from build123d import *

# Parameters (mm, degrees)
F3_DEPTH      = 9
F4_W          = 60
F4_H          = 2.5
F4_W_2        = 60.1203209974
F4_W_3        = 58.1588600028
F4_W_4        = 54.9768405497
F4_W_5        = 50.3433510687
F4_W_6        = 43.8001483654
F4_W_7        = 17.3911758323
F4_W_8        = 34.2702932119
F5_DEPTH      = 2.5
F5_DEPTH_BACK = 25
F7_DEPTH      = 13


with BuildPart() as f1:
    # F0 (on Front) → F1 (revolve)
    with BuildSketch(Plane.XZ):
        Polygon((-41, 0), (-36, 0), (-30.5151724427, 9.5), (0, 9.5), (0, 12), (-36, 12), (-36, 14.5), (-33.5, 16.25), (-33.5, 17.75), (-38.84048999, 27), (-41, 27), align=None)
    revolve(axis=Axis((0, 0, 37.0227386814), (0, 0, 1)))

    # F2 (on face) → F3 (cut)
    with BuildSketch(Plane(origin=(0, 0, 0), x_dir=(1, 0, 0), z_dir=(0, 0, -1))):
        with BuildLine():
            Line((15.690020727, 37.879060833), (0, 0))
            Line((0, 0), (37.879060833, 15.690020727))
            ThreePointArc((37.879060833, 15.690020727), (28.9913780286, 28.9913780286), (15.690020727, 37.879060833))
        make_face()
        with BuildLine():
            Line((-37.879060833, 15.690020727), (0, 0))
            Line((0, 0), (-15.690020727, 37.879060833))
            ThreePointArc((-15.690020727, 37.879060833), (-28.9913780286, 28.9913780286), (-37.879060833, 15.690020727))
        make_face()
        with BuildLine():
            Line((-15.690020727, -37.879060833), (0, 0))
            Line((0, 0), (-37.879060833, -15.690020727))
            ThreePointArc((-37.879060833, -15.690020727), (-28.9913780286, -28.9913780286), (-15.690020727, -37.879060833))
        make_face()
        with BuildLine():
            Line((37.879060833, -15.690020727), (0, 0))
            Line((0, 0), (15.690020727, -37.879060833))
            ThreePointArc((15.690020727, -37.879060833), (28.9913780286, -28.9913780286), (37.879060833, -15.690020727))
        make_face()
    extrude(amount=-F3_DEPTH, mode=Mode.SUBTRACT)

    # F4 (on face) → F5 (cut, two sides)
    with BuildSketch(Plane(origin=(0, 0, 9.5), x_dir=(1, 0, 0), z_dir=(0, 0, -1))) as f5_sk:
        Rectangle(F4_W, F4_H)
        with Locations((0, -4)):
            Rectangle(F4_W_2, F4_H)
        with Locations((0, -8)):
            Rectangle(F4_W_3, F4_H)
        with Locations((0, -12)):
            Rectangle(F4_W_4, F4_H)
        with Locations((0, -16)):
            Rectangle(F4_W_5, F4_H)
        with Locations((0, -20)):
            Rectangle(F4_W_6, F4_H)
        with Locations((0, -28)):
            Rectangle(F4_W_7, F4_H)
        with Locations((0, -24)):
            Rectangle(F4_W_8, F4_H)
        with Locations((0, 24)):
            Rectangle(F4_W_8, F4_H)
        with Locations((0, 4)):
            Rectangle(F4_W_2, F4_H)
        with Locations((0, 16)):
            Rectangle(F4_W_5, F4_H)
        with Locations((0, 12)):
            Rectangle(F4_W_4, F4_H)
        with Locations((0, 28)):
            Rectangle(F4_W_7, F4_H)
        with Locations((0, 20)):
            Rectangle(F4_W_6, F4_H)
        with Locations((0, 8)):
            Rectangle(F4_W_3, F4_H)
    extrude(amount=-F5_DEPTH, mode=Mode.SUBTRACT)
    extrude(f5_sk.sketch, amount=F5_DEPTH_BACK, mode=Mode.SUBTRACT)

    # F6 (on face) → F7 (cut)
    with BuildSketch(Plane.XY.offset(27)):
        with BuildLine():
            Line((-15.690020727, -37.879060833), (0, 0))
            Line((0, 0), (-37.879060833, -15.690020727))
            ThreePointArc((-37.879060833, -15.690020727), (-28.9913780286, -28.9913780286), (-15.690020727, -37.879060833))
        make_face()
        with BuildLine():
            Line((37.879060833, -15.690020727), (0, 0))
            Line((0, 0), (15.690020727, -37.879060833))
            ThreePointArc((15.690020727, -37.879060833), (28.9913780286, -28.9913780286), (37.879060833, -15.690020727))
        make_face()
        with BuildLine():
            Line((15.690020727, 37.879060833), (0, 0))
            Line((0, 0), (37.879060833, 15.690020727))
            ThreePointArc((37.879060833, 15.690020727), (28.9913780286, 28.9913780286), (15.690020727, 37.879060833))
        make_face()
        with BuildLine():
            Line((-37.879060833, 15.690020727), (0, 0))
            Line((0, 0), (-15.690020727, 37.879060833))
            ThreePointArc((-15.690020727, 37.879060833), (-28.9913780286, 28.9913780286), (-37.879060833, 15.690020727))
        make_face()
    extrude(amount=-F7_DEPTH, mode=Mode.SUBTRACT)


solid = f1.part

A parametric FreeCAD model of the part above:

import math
import FreeCAD as App
import Part
import Sketcher

V = App.Vector
Q = App.Units.Quantity


def add_polygon(sketch, points):
    """Adds a closed chain of lines whose ends are joined by coincident constraints."""
    first, n = sketch.GeometryCount, len(points)
    for a, b in zip(points, points[1:] + points[:1]):
        sketch.addGeometry(Part.LineSegment(App.Vector(*a, 0), App.Vector(*b, 0)), False)
    for i in range(n):
        sketch.addConstraint(Sketcher.Constraint("Coincident", first + i, 2, first + (i + 1) % n, 1))

doc = App.newDocument("Part")
body = doc.addObject("PartDesign::Body", "Body")

# Sketch on XZ plane
sketch1 = body.newObject("Sketcher::SketchObject", "Sketch")
sketch1.AttachmentSupport = (doc.getObject("XZ_Plane"), [""])
sketch1.MapMode = "FlatFace"
add_polygon(sketch1, [(-41, 0), (-36, 0), (-30.515172, 9.5), (0, 9.5), (0, 12), (-36, 12), (-36, 14.5), (-33.5, 16.25), (-33.5, 17.75), (-38.84049, 27), (-41, 27)])  # lines 0-10
sketch1.addConstraint([
    Sketcher.Constraint("Horizontal", 0),
    Sketcher.Constraint("Horizontal", 2),
    Sketcher.Constraint("Vertical", 3),
    Sketcher.Constraint("Horizontal", 4),
    Sketcher.Constraint("Vertical", 5),
    Sketcher.Constraint("Vertical", 7),
    Sketcher.Constraint("Horizontal", 9),
    Sketcher.Constraint("Vertical", 10),
    Sketcher.Constraint("PointOnObject", 0, 2, -1),
    Sketcher.Constraint("PointOnObject", 2, 2, -2),
    Sketcher.Constraint("Vertical", 0, 2, 4, 2),
    Sketcher.Constraint("Equal", 3, 5),
    Sketcher.Constraint("DistanceX", 0, 1, 0, 2, Q("5 mm")),
    Sketcher.Constraint("DistanceX", 4, 2, 4, 1, Q("36 mm")),
    Sketcher.Constraint("DistanceY", 10, 2, 10, 1, Q("27 mm")),
    Sketcher.Constraint("Angle", 1, Q("60 deg")),
    Sketcher.Constraint("Angle", 8, Q("120 deg")),
    Sketcher.Constraint("DistanceY", 3, 1, 3, 2, Q("2.5 mm")),
    Sketcher.Constraint("DistanceY", 7, 1, 7, 2, Q("1.5 mm")),
    Sketcher.Constraint("DistanceY", -1, 1, 3, 2, Q("12 mm")),
    Sketcher.Constraint("DistanceX", 6, 2, -1, 1, Q("33.5 mm")),
    Sketcher.Constraint("DistanceY", -1, 1, 6, 2, Q("16.25 mm")),
])
revolution = body.newObject("PartDesign::Revolution", "Revolution")
revolution.Profile = sketch1
revolution.ReferenceAxis = (sketch1, ["V_Axis"])
revolution.Angle = 360

# Sketch on XY plane
sketch2 = body.newObject("Sketcher::SketchObject", "Sketch001")
sketch2.AttachmentSupport = (doc.getObject("XY_Plane"), [""])
sketch2.MapMode = "FlatFace"
sketch2.addGeometry([
    Part.LineSegment(V(15.690021, -37.879061, 0), V(0, 0, 0)),  # 0
    Part.LineSegment(V(0, 0, 0), V(37.879061, -15.690021, 0)),  # 1
    Part.ArcOfCircle(Part.Circle(V(0, 0, 0), V(0, 0, 1), 41), math.radians(-67.5), math.radians(-22.5)),  # 2
    Part.LineSegment(V(-37.879061, -15.690021, 0), V(0, 0, 0)),  # 3
    Part.LineSegment(V(0, 0, 0), V(-15.690021, -37.879061, 0)),  # 4
    Part.ArcOfCircle(Part.Circle(V(0, 0, 0), V(0, 0, 1), 41), math.radians(-157.5), math.radians(-112.5)),  # 5
    Part.LineSegment(V(-15.690021, 37.879061, 0), V(0, 0, 0)),  # 6
    Part.LineSegment(V(0, 0, 0), V(-37.879061, 15.690021, 0)),  # 7
    Part.ArcOfCircle(Part.Circle(V(0, 0, 0), V(0, 0, 1), 41), math.radians(112.5), math.radians(157.5)),  # 8
    Part.LineSegment(V(37.879061, 15.690021, 0), V(0, 0, 0)),  # 9
    Part.LineSegment(V(0, 0, 0), V(15.690021, 37.879061, 0)),  # 10
    Part.ArcOfCircle(Part.Circle(V(0, 0, 0), V(0, 0, 1), 41), math.radians(22.5), math.radians(67.5)),  # 11
], False)
sketch2.addConstraint([
    Sketcher.Constraint("Coincident", 0, 2, 1, 1),
    Sketcher.Constraint("Coincident", 1, 2, 2, 2),
    Sketcher.Constraint("Coincident", 2, 1, 0, 1),
    Sketcher.Constraint("Coincident", 3, 2, 4, 1),
    Sketcher.Constraint("Coincident", 4, 2, 5, 2),
    Sketcher.Constraint("Coincident", 5, 1, 3, 1),
    Sketcher.Constraint("Coincident", 6, 2, 7, 1),
    Sketcher.Constraint("Coincident", 7, 2, 8, 2),
    Sketcher.Constraint("Coincident", 8, 1, 6, 1),
    Sketcher.Constraint("Coincident", 9, 2, 10, 1),
    Sketcher.Constraint("Coincident", 10, 2, 11, 2),
    Sketcher.Constraint("Coincident", 11, 1, 9, 1),
    Sketcher.Constraint("Coincident", 2, 3, -1, 1),
    Sketcher.Constraint("Coincident", 5, 3, -1, 1),
    Sketcher.Constraint("Coincident", 8, 3, -1, 1),
    Sketcher.Constraint("Coincident", 11, 3, -1, 1),
    Sketcher.Constraint("Coincident", 0, 2, -1, 1),
    Sketcher.Constraint("Coincident", 3, 2, -1, 1),
    Sketcher.Constraint("Coincident", 6, 2, -1, 1),
    Sketcher.Constraint("Coincident", 9, 2, -1, 1),
    Sketcher.Constraint("Equal", 2, 5),
    Sketcher.Constraint("Equal", 5, 8),
    Sketcher.Constraint("Equal", 8, 11),
    Sketcher.Constraint("Perpendicular", 0, 3),
    Sketcher.Constraint("Perpendicular", 1, 4),
    Sketcher.Constraint("Perpendicular", 3, 6),
    Sketcher.Constraint("Perpendicular", 4, 7),
    Sketcher.Constraint("Perpendicular", 6, 9),
    Sketcher.Constraint("Perpendicular", 7, 10),
    Sketcher.Constraint("Horizontal", 2, 1, 4, 2),
    Sketcher.Constraint("Radius", 2, Q("41 mm")),
    Sketcher.Constraint("Angle", 0, Q("112.5 deg")),
])
pocket1 = body.newObject("PartDesign::Pocket", "Pocket")
pocket1.Profile = sketch2
pocket1.Length = 9
pocket1.Reversed = True

# Sketch on XY plane
sketch3 = body.newObject("Sketcher::SketchObject", "Sketch002")
sketch3.AttachmentSupport = (doc.getObject("XY_Plane"), [""])
sketch3.MapMode = "FlatFace"
sketch3.AttachmentOffset = App.Placement(V(0, 0, 9.5), App.Rotation())
add_polygon(sketch3, [(-30, -1.25), (-30, 1.25), (30, 1.25), (30, -1.25)])  # lines 0-3
add_polygon(sketch3, [(-30.06016, 2.75), (-30.06016, 5.25), (30.06016, 5.25), (30.06016, 2.75)])  # lines 4-7
add_polygon(sketch3, [(-29.07943, 6.75), (-29.07943, 9.25), (29.07943, 9.25), (29.07943, 6.75)])  # lines 8-11
add_polygon(sketch3, [(-27.48842, 10.75), (-27.48842, 13.25), (27.48842, 13.25), (27.48842, 10.75)])  # lines 12-15
add_polygon(sketch3, [(-25.171676, 14.75), (-25.171676, 17.25), (25.171676, 17.25), (25.171676, 14.75)])  # lines 16-19
add_polygon(sketch3, [(-21.900074, 18.75), (-21.900074, 21.25), (21.900074, 21.25), (21.900074, 18.75)])  # lines 20-23
add_polygon(sketch3, [(-8.695588, 26.75), (-8.695588, 29.25), (8.695588, 29.25), (8.695588, 26.75)])  # lines 24-27
add_polygon(sketch3, [(-17.135147, 22.75), (-17.135147, 25.25), (17.135147, 25.25), (17.135147, 22.75)])  # lines 28-31
add_polygon(sketch3, [(-17.135147, -25.25), (-17.135147, -22.75), (17.135147, -22.75), (17.135147, -25.25)])  # lines 32-35
add_polygon(sketch3, [(-30.06016, -5.25), (-30.06016, -2.75), (30.06016, -2.75), (30.06016, -5.25)])  # lines 36-39
add_polygon(sketch3, [(-25.171676, -17.25), (-25.171676, -14.75), (25.171676, -14.75), (25.171676, -17.25)])  # lines 40-43
add_polygon(sketch3, [(-27.48842, -13.25), (-27.48842, -10.75), (27.48842, -10.75), (27.48842, -13.25)])  # lines 44-47
add_polygon(sketch3, [(-8.695588, -29.25), (-8.695588, -26.75), (8.695588, -26.75), (8.695588, -29.25)])  # lines 48-51
add_polygon(sketch3, [(-21.900074, -21.25), (-21.900074, -18.75), (21.900074, -18.75), (21.900074, -21.25)])  # lines 52-55
add_polygon(sketch3, [(-29.07943, -9.25), (-29.07943, -6.75), (29.07943, -6.75), (29.07943, -9.25)])  # lines 56-59
sketch3.addConstraint([
    Sketcher.Constraint("Vertical", 0),
    Sketcher.Constraint("Horizontal", 1),
    Sketcher.Constraint("Vertical", 2),
    Sketcher.Constraint("Horizontal", 3),
    Sketcher.Constraint("Vertical", 4),
    Sketcher.Constraint("Horizontal", 5),
    Sketcher.Constraint("Vertical", 6),
    Sketcher.Constraint("Horizontal", 7),
    Sketcher.Constraint("Vertical", 8),
    Sketcher.Constraint("Horizontal", 9),
    Sketcher.Constraint("Vertical", 10),
    Sketcher.Constraint("Horizontal", 11),
    Sketcher.Constraint("Vertical", 12),
    Sketcher.Constraint("Horizontal", 13),
    Sketcher.Constraint("Vertical", 14),
    Sketcher.Constraint("Horizontal", 15),
    Sketcher.Constraint("Vertical", 16),
    Sketcher.Constraint("Horizontal", 17),
    Sketcher.Constraint("Vertical", 18),
    Sketcher.Constraint("Horizontal", 19),
    Sketcher.Constraint("Vertical", 20),
    Sketcher.Constraint("Horizontal", 21),
    Sketcher.Constraint("Vertical", 22),
    Sketcher.Constraint("Horizontal", 23),
    Sketcher.Constraint("Vertical", 24),
    Sketcher.Constraint("Horizontal", 25),
    Sketcher.Constraint("Vertical", 26),
    Sketcher.Constraint("Horizontal", 27),
    Sketcher.Constraint("Vertical", 28),
    Sketcher.Constraint("Horizontal", 29),
    Sketcher.Constraint("Vertical", 30),
    Sketcher.Constraint("Horizontal", 31),
    Sketcher.Constraint("Vertical", 32),
    Sketcher.Constraint("Horizontal", 33),
    Sketcher.Constraint("Vertical", 34),
    Sketcher.Constraint("Horizontal", 35),
    Sketcher.Constraint("Vertical", 36),
    Sketcher.Constraint("Horizontal", 37),
    Sketcher.Constraint("Vertical", 38),
    Sketcher.Constraint("Horizontal", 39),
    Sketcher.Constraint("Vertical", 40),
    Sketcher.Constraint("Horizontal", 41),
    Sketcher.Constraint("Vertical", 42),
    Sketcher.Constraint("Horizontal", 43),
    Sketcher.Constraint("Vertical", 44),
    Sketcher.Constraint("Horizontal", 45),
    Sketcher.Constraint("Vertical", 46),
    Sketcher.Constraint("Horizontal", 47),
    Sketcher.Constraint("Vertical", 48),
    Sketcher.Constraint("Horizontal", 49),
    Sketcher.Constraint("Vertical", 50),
    Sketcher.Constraint("Horizontal", 51),
    Sketcher.Constraint("Vertical", 52),
    Sketcher.Constraint("Horizontal", 53),
    Sketcher.Constraint("Vertical", 54),
    Sketcher.Constraint("Horizontal", 55),
    Sketcher.Constraint("Vertical", 56),
    Sketcher.Constraint("Horizontal", 57),
    Sketcher.Constraint("Vertical", 58),
    Sketcher.Constraint("Horizontal", 59),
    Sketcher.Constraint("Symmetric", 0, 2, 2, 2, -1, 1),
    Sketcher.Constraint("Symmetric", 30, 2, 32, 2, -1, 1),
    Sketcher.Constraint("Symmetric", 28, 2, 34, 2, -1, 1),
    Sketcher.Constraint("Symmetric", 6, 2, 36, 2, -1, 1),
    Sketcher.Constraint("Symmetric", 4, 2, 38, 2, -1, 1),
    Sketcher.Constraint("Symmetric", 18, 2, 40, 2, -1, 1),
    Sketcher.Constraint("Symmetric", 16, 2, 42, 2, -1, 1),
    Sketcher.Constraint("Symmetric", 14, 2, 44, 2, -1, 1),
    Sketcher.Constraint("Symmetric", 12, 2, 46, 2, -1, 1),
    Sketcher.Constraint("Symmetric", 26, 2, 48, 2, -1, 1),
    Sketcher.Constraint("Symmetric", 24, 2, 50, 2, -1, 1),
    Sketcher.Constraint("Symmetric", 22, 2, 52, 2, -1, 1),
    Sketcher.Constraint("Symmetric", 20, 2, 54, 2, -1, 1),
    Sketcher.Constraint("Symmetric", 10, 2, 56, 2, -1, 1),
    Sketcher.Constraint("Symmetric", 8, 2, 58, 2, -1, 1),
    Sketcher.Constraint("Vertical", 31, 2, 32, 2),
    Sketcher.Constraint("Vertical", 7, 2, 36, 2),
    Sketcher.Constraint("Vertical", 19, 2, 40, 2),
    Sketcher.Constraint("Vertical", 15, 2, 44, 2),
    Sketcher.Constraint("Vertical", 27, 2, 48, 2),
    Sketcher.Constraint("Vertical", 23, 2, 52, 2),
    Sketcher.Constraint("Vertical", 11, 2, 56, 2),
    Sketcher.Constraint("Equal", 2, 4),
    Sketcher.Constraint("Equal", 6, 8),
    Sketcher.Constraint("Equal", 10, 12),
    Sketcher.Constraint("Equal", 14, 16),
    Sketcher.Constraint("Equal", 18, 20),
    Sketcher.Constraint("Equal", 22, 24),
    Sketcher.Constraint("Equal", 26, 28),
    Sketcher.Constraint("DistanceX", 1, 1, 1, 2, Q("60 mm")),
    Sketcher.Constraint("DistanceY", 0, 1, 0, 2, Q("2.5 mm")),
    Sketcher.Constraint("DistanceY", 0, 2, 4, 2, Q("4 mm")),
    Sketcher.Constraint("DistanceY", 4, 2, 8, 2, Q("4 mm")),
    Sketcher.Constraint("DistanceY", 8, 2, 12, 2, Q("4 mm")),
    Sketcher.Constraint("DistanceY", 12, 2, 16, 2, Q("4 mm")),
    Sketcher.Constraint("DistanceY", 16, 2, 20, 2, Q("4 mm")),
    Sketcher.Constraint("DistanceY", 20, 2, 24, 2, Q("8 mm")),
    Sketcher.Constraint("DistanceY", 20, 2, 28, 2, Q("4 mm")),
    Sketcher.Constraint("DistanceX", 5, 1, 5, 2, Q("60.120321 mm")),
    Sketcher.Constraint("DistanceX", 9, 1, 9, 2, Q("58.15886 mm")),
    Sketcher.Constraint("DistanceX", 13, 1, 13, 2, Q("54.976841 mm")),
    Sketcher.Constraint("DistanceX", 17, 1, 17, 2, Q("50.343351 mm")),
    Sketcher.Constraint("DistanceX", 21, 1, 21, 2, Q("43.800148 mm")),
    Sketcher.Constraint("DistanceX", 25, 1, 25, 2, Q("17.391176 mm")),
    Sketcher.Constraint("DistanceX", 29, 1, 29, 2, Q("34.270293 mm")),
])
pocket2 = body.newObject("PartDesign::Pocket", "Pocket001")
pocket2.Profile = sketch3
pocket2.Type = "ThroughAll"
pocket2.Midplane = True

# Sketch on XY plane
sketch4 = body.newObject("Sketcher::SketchObject", "Sketch003")
sketch4.AttachmentSupport = (doc.getObject("XY_Plane"), [""])
sketch4.MapMode = "FlatFace"
sketch4.AttachmentOffset = App.Placement(V(0, 0, 27), App.Rotation())
sketch4.addGeometry([
    Part.LineSegment(V(-15.690021, -37.879061, 0), V(0, 0, 0)),  # 0
    Part.LineSegment(V(0, 0, 0), V(-37.879061, -15.690021, 0)),  # 1
    Part.ArcOfCircle(Part.Circle(V(0, 0, 0), V(0, 0, 1), 41), math.radians(-157.5), math.radians(-112.5)),  # 2
    Part.LineSegment(V(37.879061, -15.690021, 0), V(0, 0, 0)),  # 3
    Part.LineSegment(V(0, 0, 0), V(15.690021, -37.879061, 0)),  # 4
    Part.ArcOfCircle(Part.Circle(V(0, 0, 0), V(0, 0, 1), 41), math.radians(-67.5), math.radians(-22.5)),  # 5
    Part.LineSegment(V(15.690021, 37.879061, 0), V(0, 0, 0)),  # 6
    Part.LineSegment(V(0, 0, 0), V(37.879061, 15.690021, 0)),  # 7
    Part.ArcOfCircle(Part.Circle(V(0, 0, 0), V(0, 0, 1), 41), math.radians(22.5), math.radians(67.5)),  # 8
    Part.LineSegment(V(-37.879061, 15.690021, 0), V(0, 0, 0)),  # 9
    Part.LineSegment(V(0, 0, 0), V(-15.690021, 37.879061, 0)),  # 10
    Part.ArcOfCircle(Part.Circle(V(0, 0, 0), V(0, 0, 1), 41), math.radians(112.5), math.radians(157.5)),  # 11
], False)
sketch4.addConstraint([
    Sketcher.Constraint("Coincident", 0, 2, 1, 1),
    Sketcher.Constraint("Coincident", 1, 2, 2, 1),
    Sketcher.Constraint("Coincident", 2, 2, 0, 1),
    Sketcher.Constraint("Coincident", 3, 2, 4, 1),
    Sketcher.Constraint("Coincident", 4, 2, 5, 1),
    Sketcher.Constraint("Coincident", 5, 2, 3, 1),
    Sketcher.Constraint("Coincident", 6, 2, 7, 1),
    Sketcher.Constraint("Coincident", 7, 2, 8, 1),
    Sketcher.Constraint("Coincident", 8, 2, 6, 1),
    Sketcher.Constraint("Coincident", 9, 2, 10, 1),
    Sketcher.Constraint("Coincident", 10, 2, 11, 1),
    Sketcher.Constraint("Coincident", 11, 2, 9, 1),
    Sketcher.Constraint("Coincident", 2, 3, -1, 1),
    Sketcher.Constraint("Coincident", 5, 3, -1, 1),
    Sketcher.Constraint("Coincident", 8, 3, -1, 1),
    Sketcher.Constraint("Coincident", 11, 3, -1, 1),
    Sketcher.Constraint("Coincident", 0, 2, -1, 1),
    Sketcher.Constraint("Coincident", 3, 2, -1, 1),
    Sketcher.Constraint("Coincident", 6, 2, -1, 1),
    Sketcher.Constraint("Coincident", 9, 2, -1, 1),
    Sketcher.Constraint("Equal", 2, 5),
    Sketcher.Constraint("Equal", 5, 8),
    Sketcher.Constraint("Equal", 8, 11),
    Sketcher.Constraint("Perpendicular", 0, 3),
    Sketcher.Constraint("Perpendicular", 1, 4),
    Sketcher.Constraint("Perpendicular", 3, 6),
    Sketcher.Constraint("Perpendicular", 4, 7),
    Sketcher.Constraint("Perpendicular", 6, 9),
    Sketcher.Constraint("Perpendicular", 7, 10),
    Sketcher.Constraint("Horizontal", 2, 2, 4, 2),
    Sketcher.Constraint("Radius", 2, Q("41 mm")),
    Sketcher.Constraint("Angle", 0, Q("67.5 deg")),
])
pocket3 = body.newObject("PartDesign::Pocket", "Pocket002")
pocket3.Profile = sketch4
pocket3.Length = 13

doc.recompute()
